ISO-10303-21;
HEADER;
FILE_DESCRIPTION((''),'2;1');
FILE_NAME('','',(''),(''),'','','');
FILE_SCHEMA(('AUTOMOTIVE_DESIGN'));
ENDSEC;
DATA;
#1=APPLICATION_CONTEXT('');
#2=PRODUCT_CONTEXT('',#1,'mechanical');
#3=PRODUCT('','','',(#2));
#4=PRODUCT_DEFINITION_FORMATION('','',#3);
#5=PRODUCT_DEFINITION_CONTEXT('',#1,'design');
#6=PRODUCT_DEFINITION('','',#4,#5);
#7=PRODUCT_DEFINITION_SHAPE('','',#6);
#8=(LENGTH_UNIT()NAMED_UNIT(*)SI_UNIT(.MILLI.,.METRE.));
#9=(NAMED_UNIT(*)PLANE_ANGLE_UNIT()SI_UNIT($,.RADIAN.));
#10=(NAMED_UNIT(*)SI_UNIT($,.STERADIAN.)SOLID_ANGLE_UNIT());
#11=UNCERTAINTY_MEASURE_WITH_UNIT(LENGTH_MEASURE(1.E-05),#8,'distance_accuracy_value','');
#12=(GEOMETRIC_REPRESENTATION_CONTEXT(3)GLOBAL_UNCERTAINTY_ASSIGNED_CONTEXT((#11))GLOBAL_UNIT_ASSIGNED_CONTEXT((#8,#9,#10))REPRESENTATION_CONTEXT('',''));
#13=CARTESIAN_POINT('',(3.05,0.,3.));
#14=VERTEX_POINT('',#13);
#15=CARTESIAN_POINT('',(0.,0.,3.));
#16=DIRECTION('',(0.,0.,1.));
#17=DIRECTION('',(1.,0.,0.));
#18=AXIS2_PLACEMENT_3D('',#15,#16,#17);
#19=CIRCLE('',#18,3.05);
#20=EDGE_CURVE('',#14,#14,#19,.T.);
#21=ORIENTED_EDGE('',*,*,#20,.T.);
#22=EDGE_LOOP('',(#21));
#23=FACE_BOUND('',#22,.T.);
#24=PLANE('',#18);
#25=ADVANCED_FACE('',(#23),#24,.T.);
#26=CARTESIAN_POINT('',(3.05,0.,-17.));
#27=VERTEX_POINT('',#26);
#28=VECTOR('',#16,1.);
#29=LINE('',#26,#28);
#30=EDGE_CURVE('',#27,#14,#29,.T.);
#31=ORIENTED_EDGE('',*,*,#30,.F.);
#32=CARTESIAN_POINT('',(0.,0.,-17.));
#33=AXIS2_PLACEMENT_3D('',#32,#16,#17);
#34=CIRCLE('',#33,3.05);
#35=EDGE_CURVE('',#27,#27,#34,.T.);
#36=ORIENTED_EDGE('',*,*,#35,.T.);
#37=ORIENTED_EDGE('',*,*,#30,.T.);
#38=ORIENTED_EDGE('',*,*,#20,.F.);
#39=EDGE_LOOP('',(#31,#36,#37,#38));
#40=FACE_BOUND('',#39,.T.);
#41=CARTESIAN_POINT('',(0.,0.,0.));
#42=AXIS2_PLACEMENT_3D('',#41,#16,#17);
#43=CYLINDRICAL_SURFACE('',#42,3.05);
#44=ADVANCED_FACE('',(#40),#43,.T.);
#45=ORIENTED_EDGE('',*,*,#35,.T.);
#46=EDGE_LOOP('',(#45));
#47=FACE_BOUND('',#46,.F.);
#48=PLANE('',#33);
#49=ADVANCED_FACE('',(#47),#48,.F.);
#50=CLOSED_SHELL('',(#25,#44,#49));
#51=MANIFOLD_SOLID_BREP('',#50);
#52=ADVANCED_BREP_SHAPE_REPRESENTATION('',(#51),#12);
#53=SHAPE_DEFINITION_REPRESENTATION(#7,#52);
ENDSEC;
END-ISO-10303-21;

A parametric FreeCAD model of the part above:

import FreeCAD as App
import Part
import Sketcher
from FreeCAD import Vector

doc = App.newDocument("Part")
body = doc.addObject("PartDesign::Body", "Body")

# Sketch on XY plane
sketch1 = body.newObject("Sketcher::SketchObject", "Sketch")
sketch1.AttachmentSupport = (doc.getObject("XY_Plane"), [""])
sketch1.MapMode = "FlatFace"
sketch1.addGeometry(Part.Circle(Vector(0, 0, 0), Vector(0, 0, 1), 3.05), False)
sketch1.addConstraint([
    Sketcher.Constraint("Coincident", 0, 3, -1, 1),
    Sketcher.Constraint("Diameter", 0, 6.1),
])
pad1 = body.newObject("PartDesign::Pad", "Pad")
pad1.Profile = sketch1
pad1.Type = "TwoLengths"
pad1.Length = 3
pad1.Length2 = 17

doc.recompute()
